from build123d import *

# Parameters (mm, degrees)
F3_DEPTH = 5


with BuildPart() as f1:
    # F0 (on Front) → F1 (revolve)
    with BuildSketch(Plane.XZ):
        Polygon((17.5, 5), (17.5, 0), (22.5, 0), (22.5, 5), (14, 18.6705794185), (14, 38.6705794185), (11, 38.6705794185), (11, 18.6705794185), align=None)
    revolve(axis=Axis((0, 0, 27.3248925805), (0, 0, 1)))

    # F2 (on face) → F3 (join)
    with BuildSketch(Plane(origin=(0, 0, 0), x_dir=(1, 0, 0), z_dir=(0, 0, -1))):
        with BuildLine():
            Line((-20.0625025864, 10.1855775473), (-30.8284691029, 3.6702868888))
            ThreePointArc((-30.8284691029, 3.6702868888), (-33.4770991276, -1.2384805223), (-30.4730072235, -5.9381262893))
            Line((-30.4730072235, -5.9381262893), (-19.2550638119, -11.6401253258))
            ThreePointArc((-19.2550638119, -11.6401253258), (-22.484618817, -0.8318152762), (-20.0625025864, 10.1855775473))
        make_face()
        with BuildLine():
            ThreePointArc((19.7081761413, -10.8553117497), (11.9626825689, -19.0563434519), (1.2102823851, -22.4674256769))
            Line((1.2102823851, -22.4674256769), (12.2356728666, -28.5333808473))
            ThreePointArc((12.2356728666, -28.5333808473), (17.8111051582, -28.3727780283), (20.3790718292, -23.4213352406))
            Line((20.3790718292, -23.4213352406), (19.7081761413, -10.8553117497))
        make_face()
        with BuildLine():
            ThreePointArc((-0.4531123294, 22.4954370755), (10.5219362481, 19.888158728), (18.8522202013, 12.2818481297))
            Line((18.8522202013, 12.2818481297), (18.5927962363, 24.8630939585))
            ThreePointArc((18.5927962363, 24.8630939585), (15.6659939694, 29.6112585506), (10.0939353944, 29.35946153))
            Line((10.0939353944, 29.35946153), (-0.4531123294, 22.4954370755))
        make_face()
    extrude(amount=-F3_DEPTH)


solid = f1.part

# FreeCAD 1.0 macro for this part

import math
import FreeCAD as App
import Part
import Sketcher

V = App.Vector

doc = App.newDocument("Part")
body = doc.addObject("PartDesign::Body", "Body")

# Sketch on XZ plane
sketch1 = doc.addObject("Sketcher::SketchObject", "Sketch")
body.addObject(sketch1)
sketch1.AttachmentSupport = (doc.XZ_Plane, [""])
sketch1.MapMode = "FlatFace"
sketch1.addGeometry([
    Part.LineSegment(V(17.5, 5, 0), V(17.5, 0, 0)),  # 0
    Part.LineSegment(V(17.5, 0, 0), V(22.5, 0, 0)),  # 1
    Part.LineSegment(V(22.5, 0, 0), V(22.5, 5, 0)),  # 2
    Part.LineSegment(V(22.5, 5, 0), V(14, 18.7, 0)),  # 3
    Part.LineSegment(V(14, 18.7, 0), V(14, 38.7, 0)),  # 4
    Part.LineSegment(V(14, 38.7, 0), V(11, 38.7, 0)),  # 5
    Part.LineSegment(V(11, 38.7, 0), V(11, 18.7, 0)),  # 6
    Part.LineSegment(V(11, 18.7, 0), V(17.5, 5, 0)),  # 7
], False)
sketch1.addConstraint([
    Sketcher.Constraint("Coincident", 0, 2, 1, 1),
    Sketcher.Constraint("Coincident", 1, 2, 2, 1),
    Sketcher.Constraint("Coincident", 2, 2, 3, 1),
    Sketcher.Constraint("Coincident", 3, 2, 4, 1),
    Sketcher.Constraint("Coincident", 4, 2, 5, 1),
    Sketcher.Constraint("Coincident", 5, 2, 6, 1),
    Sketcher.Constraint("Coincident", 6, 2, 7, 1),
    Sketcher.Constraint("Coincident", 7, 2, 0, 1),
    Sketcher.Constraint("Vertical", 0),
    Sketcher.Constraint("Horizontal", 1),
    Sketcher.Constraint("Vertical", 2),
    Sketcher.Constraint("Vertical", 4),
    Sketcher.Constraint("Horizontal", 5),
    Sketcher.Constraint("Vertical", 6),
    Sketcher.Constraint("PointOnObject", 0, 2, -1),
    Sketcher.Constraint("Horizontal", 3, 2, 6, 2),
    Sketcher.Constraint("Horizontal", 2, 2, 7, 2),
    Sketcher.Constraint("Equal", 1, 0),
    Sketcher.Constraint("DistanceX", 1, 1, 1, 2, 5.0),
    Sketcher.Constraint("DistanceX", 5, 2, 5, 1, 3.0),
    Sketcher.Constraint("DistanceY", 4, 1, 4, 2, 20.0),
    Sketcher.Constraint("DistanceX", -1, 1, 3, 2, 14.0),
    Sketcher.Constraint("DistanceX", -1, 1, 0, 2, 17.5),
    Sketcher.Constraint("DistanceY", -1, 1, 3, 2, 18.670579),
])
revolution = doc.addObject("PartDesign::Revolution", "Revolution")
body.addObject(revolution)
revolution.Profile = sketch1
revolution.ReferenceAxis = (sketch1, ["V_Axis"])
revolution.Angle = 360

# Sketch on XY plane
sketch2 = doc.addObject("Sketcher::SketchObject", "Sketch001")
body.addObject(sketch2)
sketch2.AttachmentSupport = (doc.XY_Plane, [""])
sketch2.MapMode = "FlatFace"
sketch2.addGeometry([
    Part.LineSegment(V(-20, -10, 0), V(-31, -4, 0)),  # 0
    Part.ArcOfCircle(Part.Circle(V(-28, 1, 0), V(0, 0, 1), 6), math.radians(117), math.radians(239)),  # 1
    Part.LineSegment(V(-30, 6, 0), V(-19, 12, 0)),  # 2
    Part.ArcOfCircle(Part.Circle(V(0, 0, 0), V(0, 0, 1), 22), math.radians(149), math.radians(207)),  # 3
    Part.ArcOfCircle(Part.Circle(V(0, 0, 0), V(0, 0, 1), 22), math.radians(29), math.radians(87)),  # 4
    Part.LineSegment(V(1, 22, 0), V(12, 29, 0)),  # 5
    Part.ArcOfCircle(Part.Circle(V(15, 24, 0), V(0, 0, 1), 6), math.radians(-3), math.radians(119)),  # 6
    Part.LineSegment(V(20, 23, 0), V(20, 11, 0)),  # 7
    Part.ArcOfCircle(Part.Circle(V(0, 0, 0), V(0, 0, 1), 22), math.radians(-91), math.radians(-33)),  # 8
    Part.LineSegment(V(19, -12, 0), V(19, -25, 0)),  # 9
    Part.ArcOfCircle(Part.Circle(V(13, -25, 0), V(0, 0, 1), 6), math.radians(-123), math.radians(-1)),  # 10
    Part.LineSegment(V(10, -29, 0), V(0, -22, 0)),  # 11
], False)
sketch2.addConstraint([
    Sketcher.Constraint("Tangent", 0, 2, 1, 2),
    Sketcher.Constraint("Tangent", 1, 1, 2, 1),
    Sketcher.Constraint("Coincident", 2, 2, 3, 1),
    Sketcher.Constraint("Coincident", 3, 2, 0, 1),
    Sketcher.Constraint("Coincident", 4, 2, 5, 1),
    Sketcher.Constraint("Tangent", 5, 2, 6, 2),
    Sketcher.Constraint("Tangent", 6, 1, 7, 1),
    Sketcher.Constraint("Coincident", 7, 2, 4, 1),
    Sketcher.Constraint("Coincident", 8, 2, 9, 1),
    Sketcher.Constraint("Tangent", 9, 2, 10, 2),
    Sketcher.Constraint("Tangent", 10, 1, 11, 1),
    Sketcher.Constraint("Coincident", 11, 2, 8, 1),
    Sketcher.Constraint("Coincident", 3, 3, -1, 1),
    Sketcher.Constraint("Coincident", 4, 3, -1, 1),
    Sketcher.Constraint("Coincident", 8, 3, -1, 1),
    Sketcher.Constraint("Equal", 3, 4),
    Sketcher.Constraint("Equal", 1, 6),
    Sketcher.Constraint("Equal", 4, 8),
    Sketcher.Constraint("Equal", 6, 10),
    Sketcher.Constraint("Equal", 0, 2),
    Sketcher.Constraint("Equal", 2, 5),
    Sketcher.Constraint("Equal", 5, 7),
    Sketcher.Constraint("Equal", 7, 9),
    Sketcher.Constraint("Equal", 9, 11),
    Sketcher.Constraint("Radius", 1, 5.5),
    Sketcher.Constraint("Radius", 3, 22.5),
    Sketcher.Constraint("DistanceY", 1, 1, 2, 2, 5.701999),
    Sketcher.Constraint("DistanceY", 2, 2, 4, 2, 10.8273),
    Sketcher.Constraint("DistanceX", 5, 2, 6, 1, 8.143399),
    Sketcher.Constraint("Distance", 0, 12.58392),
    Sketcher.Constraint("DistanceX", 1, 3, -1, 1, 27.980859),
    Sketcher.Constraint("DistanceY", 10, 3, -1, 1, 24.749709),
    Sketcher.Constraint("DistanceX", -1, 1, 8, 2, 18.85222),
])
pad1 = doc.addObject("PartDesign::Pad", "Pad")
body.addObject(pad1)
pad1.Profile = sketch2
pad1.Length = 5

doc.recompute()
